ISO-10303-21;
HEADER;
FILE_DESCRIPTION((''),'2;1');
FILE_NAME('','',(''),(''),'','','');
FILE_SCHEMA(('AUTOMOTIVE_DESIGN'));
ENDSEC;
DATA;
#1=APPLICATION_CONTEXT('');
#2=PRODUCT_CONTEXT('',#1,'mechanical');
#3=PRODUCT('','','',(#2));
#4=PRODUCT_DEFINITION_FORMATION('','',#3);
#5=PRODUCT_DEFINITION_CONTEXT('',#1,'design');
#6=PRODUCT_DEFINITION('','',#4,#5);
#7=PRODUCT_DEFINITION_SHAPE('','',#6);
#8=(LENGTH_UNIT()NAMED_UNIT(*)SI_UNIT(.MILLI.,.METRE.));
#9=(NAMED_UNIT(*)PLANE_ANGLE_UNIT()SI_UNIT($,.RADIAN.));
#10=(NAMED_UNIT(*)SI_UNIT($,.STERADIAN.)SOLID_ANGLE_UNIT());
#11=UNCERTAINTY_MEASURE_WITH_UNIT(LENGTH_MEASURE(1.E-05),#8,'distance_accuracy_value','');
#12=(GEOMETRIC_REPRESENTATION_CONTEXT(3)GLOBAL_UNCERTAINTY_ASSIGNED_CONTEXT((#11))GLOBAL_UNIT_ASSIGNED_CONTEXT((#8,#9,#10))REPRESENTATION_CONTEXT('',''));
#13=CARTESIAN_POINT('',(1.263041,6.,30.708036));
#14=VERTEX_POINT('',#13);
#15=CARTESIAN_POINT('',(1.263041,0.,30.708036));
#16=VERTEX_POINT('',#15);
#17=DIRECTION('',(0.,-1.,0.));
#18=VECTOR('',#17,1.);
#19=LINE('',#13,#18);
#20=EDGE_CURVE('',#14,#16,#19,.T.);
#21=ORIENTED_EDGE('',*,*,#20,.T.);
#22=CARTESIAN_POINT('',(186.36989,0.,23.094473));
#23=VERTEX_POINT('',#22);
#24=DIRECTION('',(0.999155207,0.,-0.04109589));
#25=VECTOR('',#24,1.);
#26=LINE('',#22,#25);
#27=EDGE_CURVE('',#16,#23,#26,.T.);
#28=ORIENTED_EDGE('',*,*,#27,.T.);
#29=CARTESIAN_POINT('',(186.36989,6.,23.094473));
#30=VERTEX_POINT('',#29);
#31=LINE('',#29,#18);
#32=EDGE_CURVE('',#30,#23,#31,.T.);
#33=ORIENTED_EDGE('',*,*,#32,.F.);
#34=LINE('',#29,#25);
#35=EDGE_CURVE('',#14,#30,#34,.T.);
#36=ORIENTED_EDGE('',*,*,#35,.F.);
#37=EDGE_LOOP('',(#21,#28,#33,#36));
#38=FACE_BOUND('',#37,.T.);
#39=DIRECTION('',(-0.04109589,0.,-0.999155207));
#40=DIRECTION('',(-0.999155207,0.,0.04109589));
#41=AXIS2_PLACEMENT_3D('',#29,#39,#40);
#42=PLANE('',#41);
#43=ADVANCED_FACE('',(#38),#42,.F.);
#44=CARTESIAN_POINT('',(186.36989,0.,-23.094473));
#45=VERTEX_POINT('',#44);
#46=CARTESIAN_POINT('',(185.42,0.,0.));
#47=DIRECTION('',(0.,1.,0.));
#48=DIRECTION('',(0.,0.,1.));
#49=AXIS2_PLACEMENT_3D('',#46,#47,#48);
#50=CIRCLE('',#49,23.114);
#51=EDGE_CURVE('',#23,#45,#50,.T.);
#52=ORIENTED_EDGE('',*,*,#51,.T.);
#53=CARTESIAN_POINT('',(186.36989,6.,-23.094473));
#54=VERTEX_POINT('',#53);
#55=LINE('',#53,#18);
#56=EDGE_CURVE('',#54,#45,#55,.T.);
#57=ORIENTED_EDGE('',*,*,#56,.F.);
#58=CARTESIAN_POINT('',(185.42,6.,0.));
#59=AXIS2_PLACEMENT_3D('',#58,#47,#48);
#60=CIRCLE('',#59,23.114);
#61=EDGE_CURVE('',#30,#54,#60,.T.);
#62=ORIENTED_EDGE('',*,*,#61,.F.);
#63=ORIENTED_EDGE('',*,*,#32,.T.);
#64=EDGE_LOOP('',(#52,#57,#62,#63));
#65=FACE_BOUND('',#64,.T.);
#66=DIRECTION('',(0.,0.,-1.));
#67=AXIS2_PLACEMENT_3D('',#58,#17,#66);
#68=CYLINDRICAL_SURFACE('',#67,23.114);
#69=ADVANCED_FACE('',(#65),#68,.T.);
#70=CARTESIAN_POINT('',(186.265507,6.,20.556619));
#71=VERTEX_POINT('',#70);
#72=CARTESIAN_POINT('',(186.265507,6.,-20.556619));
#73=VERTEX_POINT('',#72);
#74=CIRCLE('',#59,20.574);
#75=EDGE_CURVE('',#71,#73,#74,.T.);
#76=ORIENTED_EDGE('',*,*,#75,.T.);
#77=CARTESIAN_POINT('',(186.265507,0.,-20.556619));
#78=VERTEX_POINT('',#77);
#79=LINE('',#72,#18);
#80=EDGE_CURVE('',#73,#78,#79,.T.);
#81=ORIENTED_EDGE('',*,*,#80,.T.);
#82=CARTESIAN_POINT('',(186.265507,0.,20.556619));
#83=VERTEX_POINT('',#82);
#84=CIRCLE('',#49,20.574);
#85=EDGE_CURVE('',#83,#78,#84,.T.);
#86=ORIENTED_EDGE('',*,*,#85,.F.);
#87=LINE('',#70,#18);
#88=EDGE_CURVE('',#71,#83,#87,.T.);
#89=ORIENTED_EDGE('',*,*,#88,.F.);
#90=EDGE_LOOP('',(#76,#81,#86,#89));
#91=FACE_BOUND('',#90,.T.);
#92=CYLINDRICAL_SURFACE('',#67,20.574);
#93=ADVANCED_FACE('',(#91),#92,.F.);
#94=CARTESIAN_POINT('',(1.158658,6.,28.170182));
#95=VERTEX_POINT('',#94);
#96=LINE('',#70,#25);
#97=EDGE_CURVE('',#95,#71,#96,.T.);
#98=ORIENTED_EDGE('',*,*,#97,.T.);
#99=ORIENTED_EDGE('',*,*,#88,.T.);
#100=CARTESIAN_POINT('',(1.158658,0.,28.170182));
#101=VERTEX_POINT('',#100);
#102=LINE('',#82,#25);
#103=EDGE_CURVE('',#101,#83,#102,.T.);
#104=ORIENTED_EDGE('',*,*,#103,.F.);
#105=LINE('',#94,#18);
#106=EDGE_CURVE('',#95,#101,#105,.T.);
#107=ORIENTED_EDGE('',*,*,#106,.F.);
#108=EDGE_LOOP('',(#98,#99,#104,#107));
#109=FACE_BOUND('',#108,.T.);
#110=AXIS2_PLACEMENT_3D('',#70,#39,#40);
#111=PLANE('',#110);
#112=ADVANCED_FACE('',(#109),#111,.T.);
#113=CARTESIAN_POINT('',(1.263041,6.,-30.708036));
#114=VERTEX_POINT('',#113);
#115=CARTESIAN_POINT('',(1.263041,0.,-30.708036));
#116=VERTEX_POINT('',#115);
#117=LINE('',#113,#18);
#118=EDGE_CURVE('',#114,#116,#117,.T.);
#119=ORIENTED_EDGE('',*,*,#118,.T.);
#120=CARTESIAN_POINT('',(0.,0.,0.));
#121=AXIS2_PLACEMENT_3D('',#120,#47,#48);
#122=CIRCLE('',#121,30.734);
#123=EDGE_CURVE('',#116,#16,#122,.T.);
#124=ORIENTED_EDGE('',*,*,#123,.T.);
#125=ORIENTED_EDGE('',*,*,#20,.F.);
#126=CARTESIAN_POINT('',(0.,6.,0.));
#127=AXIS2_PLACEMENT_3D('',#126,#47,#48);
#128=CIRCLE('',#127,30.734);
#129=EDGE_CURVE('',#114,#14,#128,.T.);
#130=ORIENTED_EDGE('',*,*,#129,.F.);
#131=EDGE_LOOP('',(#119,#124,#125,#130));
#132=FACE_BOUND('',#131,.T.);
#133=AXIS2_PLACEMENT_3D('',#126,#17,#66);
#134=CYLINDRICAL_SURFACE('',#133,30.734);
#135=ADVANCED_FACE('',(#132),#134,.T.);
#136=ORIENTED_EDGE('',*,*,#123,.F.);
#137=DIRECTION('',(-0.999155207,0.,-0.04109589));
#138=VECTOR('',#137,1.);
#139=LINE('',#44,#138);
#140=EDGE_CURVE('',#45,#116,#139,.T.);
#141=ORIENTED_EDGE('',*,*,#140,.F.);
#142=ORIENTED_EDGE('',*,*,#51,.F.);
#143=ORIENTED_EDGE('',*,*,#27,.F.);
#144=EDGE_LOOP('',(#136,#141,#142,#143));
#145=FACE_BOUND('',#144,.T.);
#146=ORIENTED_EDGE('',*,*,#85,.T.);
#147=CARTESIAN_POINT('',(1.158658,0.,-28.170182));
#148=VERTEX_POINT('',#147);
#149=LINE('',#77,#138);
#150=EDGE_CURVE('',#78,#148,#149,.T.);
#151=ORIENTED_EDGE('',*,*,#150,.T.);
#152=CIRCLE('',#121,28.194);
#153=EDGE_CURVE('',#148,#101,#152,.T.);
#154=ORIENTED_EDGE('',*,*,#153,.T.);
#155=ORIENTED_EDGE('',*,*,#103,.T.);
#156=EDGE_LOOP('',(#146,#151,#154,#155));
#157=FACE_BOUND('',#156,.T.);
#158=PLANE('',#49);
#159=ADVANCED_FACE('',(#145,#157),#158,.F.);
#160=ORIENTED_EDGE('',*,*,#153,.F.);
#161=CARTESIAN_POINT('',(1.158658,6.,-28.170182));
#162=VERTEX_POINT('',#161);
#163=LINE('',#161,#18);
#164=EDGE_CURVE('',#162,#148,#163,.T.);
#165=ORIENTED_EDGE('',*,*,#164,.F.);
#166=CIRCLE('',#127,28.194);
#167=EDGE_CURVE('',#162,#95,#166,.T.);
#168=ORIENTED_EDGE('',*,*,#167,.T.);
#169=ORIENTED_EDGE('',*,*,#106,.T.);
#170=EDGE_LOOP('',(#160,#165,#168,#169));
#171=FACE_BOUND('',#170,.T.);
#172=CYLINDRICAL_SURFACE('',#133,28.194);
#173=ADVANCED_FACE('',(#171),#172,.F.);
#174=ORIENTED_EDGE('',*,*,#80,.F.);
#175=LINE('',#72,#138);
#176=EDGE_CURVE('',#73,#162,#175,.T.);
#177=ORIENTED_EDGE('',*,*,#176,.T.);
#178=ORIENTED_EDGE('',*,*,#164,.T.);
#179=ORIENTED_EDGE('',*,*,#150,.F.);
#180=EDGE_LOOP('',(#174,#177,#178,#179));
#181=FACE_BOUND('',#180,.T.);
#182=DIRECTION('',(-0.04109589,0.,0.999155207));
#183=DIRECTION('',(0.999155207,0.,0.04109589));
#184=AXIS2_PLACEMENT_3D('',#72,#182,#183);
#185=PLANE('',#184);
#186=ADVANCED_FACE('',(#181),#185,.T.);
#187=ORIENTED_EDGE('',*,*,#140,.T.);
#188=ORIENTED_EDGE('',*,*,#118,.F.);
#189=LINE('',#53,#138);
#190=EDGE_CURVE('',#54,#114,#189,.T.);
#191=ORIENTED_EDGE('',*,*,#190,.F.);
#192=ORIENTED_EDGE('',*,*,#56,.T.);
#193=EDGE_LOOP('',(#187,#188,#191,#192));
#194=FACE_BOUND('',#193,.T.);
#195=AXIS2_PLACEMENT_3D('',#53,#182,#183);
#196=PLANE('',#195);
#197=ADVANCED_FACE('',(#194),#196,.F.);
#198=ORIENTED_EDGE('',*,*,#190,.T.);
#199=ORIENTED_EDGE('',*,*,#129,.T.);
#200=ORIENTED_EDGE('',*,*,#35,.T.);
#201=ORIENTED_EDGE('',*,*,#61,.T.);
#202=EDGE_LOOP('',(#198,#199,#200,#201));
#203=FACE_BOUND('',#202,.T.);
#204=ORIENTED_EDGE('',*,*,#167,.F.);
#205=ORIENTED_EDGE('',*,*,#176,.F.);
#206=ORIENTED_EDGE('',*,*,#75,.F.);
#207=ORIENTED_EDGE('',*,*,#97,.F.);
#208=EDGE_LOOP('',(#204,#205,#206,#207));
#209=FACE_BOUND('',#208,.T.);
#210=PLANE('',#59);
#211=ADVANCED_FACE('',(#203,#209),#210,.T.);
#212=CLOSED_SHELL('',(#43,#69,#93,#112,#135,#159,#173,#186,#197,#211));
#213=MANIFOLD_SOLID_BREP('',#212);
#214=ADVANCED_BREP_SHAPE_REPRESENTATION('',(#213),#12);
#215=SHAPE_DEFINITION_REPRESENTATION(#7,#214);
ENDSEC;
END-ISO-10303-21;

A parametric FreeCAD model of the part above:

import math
import FreeCAD as App
import Part
import Sketcher
Q = App.Units.Quantity

doc = App.newDocument("Part")
params = doc.addObject("Spreadsheet::Sheet", "Params")
for row, (alias, value) in enumerate([
    ("sketch1_radius", "0.91 in"),
    ("sketch1_radius2", "1.21 in"),
    ("sketch1_radius3", "1.11 in"),
    ("pad1_length", "6 mm"),
], start=1):
    params.set(f"A{row}", alias)
    params.set(f"B{row}", "=" + value)
    params.setAlias(f"B{row}", alias)

body = doc.addObject("PartDesign::Body", "Body")

sketch1 = body.newObject("Sketcher::SketchObject", "Sketch")
sketch1.AttachmentSupport = (doc.getObject("XZ_Plane"), [""])
sketch1.MapMode = "FlatFace"
sketch1.addGeometry(Part.LineSegment(App.Vector(1, 31, 0), App.Vector(186, 23, 0)), False)
sketch1.addGeometry(Part.ArcOfCircle(Part.Circle(App.Vector(185, 0, 0), App.Vector(0, 0, 1), 23), math.radians(-88), math.radians(88)), False)
sketch1.addGeometry(Part.LineSegment(App.Vector(186, -23, 0), App.Vector(1, -31, 0)), False)
sketch1.addGeometry(Part.ArcOfCircle(Part.Circle(App.Vector(0, 0, 0), App.Vector(0, 0, 1), 31), math.radians(88), math.radians(272)), False)
sketch1.addGeometry(Part.LineSegment(App.Vector(186, 21, 0), App.Vector(1, 28, 0)), False)
sketch1.addGeometry(Part.ArcOfCircle(Part.Circle(App.Vector(0, 0, 0), App.Vector(0, 0, 1), 28), math.radians(88), math.radians(272)), False)
sketch1.addGeometry(Part.LineSegment(App.Vector(1, -28, 0), App.Vector(186, -21, 0)), False)
sketch1.addGeometry(Part.ArcOfCircle(Part.Circle(App.Vector(185, 0, 0), App.Vector(0, 0, 1), 21), math.radians(-88), math.radians(88)), False)
sketch1.addConstraint(Sketcher.Constraint("Tangent", 0, 2, 1, 2))
sketch1.addConstraint(Sketcher.Constraint("Tangent", 1, 1, 2, 1))
sketch1.addConstraint(Sketcher.Constraint("Tangent", 2, 2, 3, 2))
sketch1.addConstraint(Sketcher.Constraint("Tangent", 3, 1, 0, 1))
sketch1.addConstraint(Sketcher.Constraint("Tangent", 4, 2, 5, 1))
sketch1.addConstraint(Sketcher.Constraint("Tangent", 5, 2, 6, 1))
sketch1.addConstraint(Sketcher.Constraint("Tangent", 6, 2, 7, 1))
sketch1.addConstraint(Sketcher.Constraint("Tangent", 7, 2, 4, 1))
sketch1.addConstraint(Sketcher.Constraint("Coincident", 3, 3, -1, 1))
sketch1.addConstraint(Sketcher.Constraint("Coincident", 5, 3, -1, 1))
sketch1.addConstraint(Sketcher.Constraint("Coincident", 7, 3, 1, 3))
sketch1.addConstraint(Sketcher.Constraint("PointOnObject", 1, 3, -1))
sketch1.addConstraint(Sketcher.Constraint("Parallel", 0, 4))
sketch1.addConstraint(Sketcher.Constraint("Radius", 1, Q("0.91 in")))
sketch1.addConstraint(Sketcher.Constraint("Radius", 3, Q("1.21 in")))
sketch1.addConstraint(Sketcher.Constraint("Radius", 5, Q("1.11 in")))
sketch1.addConstraint(Sketcher.Constraint("DistanceX", -1, 1, 1, 3, Q("7.3 in")))
sketch1.setExpression("Constraints[13]", "Params.sketch1_radius")
sketch1.setExpression("Constraints[14]", "Params.sketch1_radius2")
sketch1.setExpression("Constraints[15]", "Params.sketch1_radius3")
pad1 = body.newObject("PartDesign::Pad", "Pad")
pad1.Profile = sketch1
pad1.setExpression("Length", "Params.pad1_length")
pad1.Reversed = True

doc.recompute()
